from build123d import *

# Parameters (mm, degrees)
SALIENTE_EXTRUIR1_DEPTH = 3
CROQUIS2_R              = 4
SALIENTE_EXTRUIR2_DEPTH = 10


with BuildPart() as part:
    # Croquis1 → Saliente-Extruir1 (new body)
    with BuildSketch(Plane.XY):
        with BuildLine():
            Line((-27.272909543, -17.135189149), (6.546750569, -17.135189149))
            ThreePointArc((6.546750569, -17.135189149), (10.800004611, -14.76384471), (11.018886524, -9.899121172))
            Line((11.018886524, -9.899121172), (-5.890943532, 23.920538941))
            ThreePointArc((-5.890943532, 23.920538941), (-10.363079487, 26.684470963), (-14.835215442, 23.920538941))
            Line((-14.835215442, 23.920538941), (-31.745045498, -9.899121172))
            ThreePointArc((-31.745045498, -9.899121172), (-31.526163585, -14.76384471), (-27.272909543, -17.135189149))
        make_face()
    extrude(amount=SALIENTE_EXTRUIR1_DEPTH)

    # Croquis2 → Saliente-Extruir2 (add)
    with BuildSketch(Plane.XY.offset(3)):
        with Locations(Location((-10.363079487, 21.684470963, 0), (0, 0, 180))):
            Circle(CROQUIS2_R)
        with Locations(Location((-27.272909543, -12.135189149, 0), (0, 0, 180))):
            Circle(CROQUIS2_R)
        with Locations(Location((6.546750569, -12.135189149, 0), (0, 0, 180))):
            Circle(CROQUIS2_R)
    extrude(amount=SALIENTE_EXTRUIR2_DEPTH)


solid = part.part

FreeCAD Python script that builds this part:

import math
import FreeCAD as App
import Part
import Sketcher

V = App.Vector

doc = App.newDocument("Part")
body = doc.addObject("PartDesign::Body", "Body")

sketch1 = body.newObject("Sketcher::SketchObject", "Sketch")
sketch1.AttachmentSupport = (doc.getObject("XY_Plane"), [""])
sketch1.MapMode = "FlatFace"
sketch1.addGeometry([
    Part.LineSegment(V(-27.3, -17.1, 0), V(6.5, -17.1, 0)),
    Part.ArcOfCircle(Part.Circle(V(6.5, -12.1, 0), V(0, 0, 1), 5), math.radians(-90), math.radians(27)),
    Part.LineSegment(V(11, -9.9, 0), V(-5.9, 23.9, 0)),
    Part.ArcOfCircle(Part.Circle(V(-10.4, 21.7, 0), V(0, 0, 1), 5), math.radians(27), math.radians(153)),
    Part.LineSegment(V(-14.8, 23.9, 0), V(-31.7, -9.9, 0)),
    Part.ArcOfCircle(Part.Circle(V(-27.3, -12.1, 0), V(0, 0, 1), 5), math.radians(153), math.radians(270)),
], False)
sketch1.addConstraint([
    Sketcher.Constraint("Tangent", 0, 2, 1, 1),
    Sketcher.Constraint("Tangent", 1, 2, 2, 1),
    Sketcher.Constraint("Tangent", 2, 2, 3, 1),
    Sketcher.Constraint("Tangent", 3, 2, 4, 1),
    Sketcher.Constraint("Tangent", 4, 2, 5, 1),
    Sketcher.Constraint("Tangent", 5, 2, 0, 1),
    Sketcher.Constraint("Horizontal", 0),
    Sketcher.Constraint("Equal", 1, 3),
    Sketcher.Constraint("Equal", 3, 5),
    Sketcher.Constraint("Horizontal", 2, 2, 3, 2),
    Sketcher.Constraint("Radius", 1, 5.0),
    Sketcher.Constraint("DistanceX", 0, 1, 0, 2, 33.81966),
    Sketcher.Constraint("DistanceX", 3, 2, 1, 2, 25.854102),
    Sketcher.Constraint("DistanceX", -1, 1, 1, 3, 6.546751),
    Sketcher.Constraint("DistanceY", 1, 3, -1, 1, 12.135189),
])
pad1 = body.newObject("PartDesign::Pad", "Pad")
pad1.Profile = sketch1
pad1.Length = 3

sketch2 = body.newObject("Sketcher::SketchObject", "Sketch001")
sketch2.AttachmentSupport = (doc.getObject("XY_Plane"), [""])
sketch2.MapMode = "FlatFace"
sketch2.AttachmentOffset = App.Placement(V(0, 0, 3), App.Rotation())
sketch2.addGeometry([
    Part.Circle(V(-10.4, 21.7, 0), V(0, 0, 1), 4),
    Part.Circle(V(-27.3, -12.1, 0), V(0, 0, 1), 4),
    Part.Circle(V(6.5, -12.1, 0), V(0, 0, 1), 4),
], False)
sketch2.addConstraint([
    Sketcher.Constraint("Equal", 0, 1),
    Sketcher.Constraint("Equal", 1, 2),
    Sketcher.Constraint("Horizontal", 1, 3, 2, 3),
    Sketcher.Constraint("Diameter", 0, 8.0),
    Sketcher.Constraint("DistanceX", 0, 3, -1, 1, 10.363079),
    Sketcher.Constraint("DistanceY", -1, 1, 0, 3, 21.684471),
    Sketcher.Constraint("DistanceX", 1, 3, -1, 1, 27.27291),
    Sketcher.Constraint("DistanceY", 1, 3, -1, 1, 12.135189),
    Sketcher.Constraint("DistanceX", -1, 1, 2, 3, 6.546751),
])
pad2 = body.newObject("PartDesign::Pad", "Pad001")
pad2.Profile = sketch2
pad2.Length = 10

doc.recompute()
